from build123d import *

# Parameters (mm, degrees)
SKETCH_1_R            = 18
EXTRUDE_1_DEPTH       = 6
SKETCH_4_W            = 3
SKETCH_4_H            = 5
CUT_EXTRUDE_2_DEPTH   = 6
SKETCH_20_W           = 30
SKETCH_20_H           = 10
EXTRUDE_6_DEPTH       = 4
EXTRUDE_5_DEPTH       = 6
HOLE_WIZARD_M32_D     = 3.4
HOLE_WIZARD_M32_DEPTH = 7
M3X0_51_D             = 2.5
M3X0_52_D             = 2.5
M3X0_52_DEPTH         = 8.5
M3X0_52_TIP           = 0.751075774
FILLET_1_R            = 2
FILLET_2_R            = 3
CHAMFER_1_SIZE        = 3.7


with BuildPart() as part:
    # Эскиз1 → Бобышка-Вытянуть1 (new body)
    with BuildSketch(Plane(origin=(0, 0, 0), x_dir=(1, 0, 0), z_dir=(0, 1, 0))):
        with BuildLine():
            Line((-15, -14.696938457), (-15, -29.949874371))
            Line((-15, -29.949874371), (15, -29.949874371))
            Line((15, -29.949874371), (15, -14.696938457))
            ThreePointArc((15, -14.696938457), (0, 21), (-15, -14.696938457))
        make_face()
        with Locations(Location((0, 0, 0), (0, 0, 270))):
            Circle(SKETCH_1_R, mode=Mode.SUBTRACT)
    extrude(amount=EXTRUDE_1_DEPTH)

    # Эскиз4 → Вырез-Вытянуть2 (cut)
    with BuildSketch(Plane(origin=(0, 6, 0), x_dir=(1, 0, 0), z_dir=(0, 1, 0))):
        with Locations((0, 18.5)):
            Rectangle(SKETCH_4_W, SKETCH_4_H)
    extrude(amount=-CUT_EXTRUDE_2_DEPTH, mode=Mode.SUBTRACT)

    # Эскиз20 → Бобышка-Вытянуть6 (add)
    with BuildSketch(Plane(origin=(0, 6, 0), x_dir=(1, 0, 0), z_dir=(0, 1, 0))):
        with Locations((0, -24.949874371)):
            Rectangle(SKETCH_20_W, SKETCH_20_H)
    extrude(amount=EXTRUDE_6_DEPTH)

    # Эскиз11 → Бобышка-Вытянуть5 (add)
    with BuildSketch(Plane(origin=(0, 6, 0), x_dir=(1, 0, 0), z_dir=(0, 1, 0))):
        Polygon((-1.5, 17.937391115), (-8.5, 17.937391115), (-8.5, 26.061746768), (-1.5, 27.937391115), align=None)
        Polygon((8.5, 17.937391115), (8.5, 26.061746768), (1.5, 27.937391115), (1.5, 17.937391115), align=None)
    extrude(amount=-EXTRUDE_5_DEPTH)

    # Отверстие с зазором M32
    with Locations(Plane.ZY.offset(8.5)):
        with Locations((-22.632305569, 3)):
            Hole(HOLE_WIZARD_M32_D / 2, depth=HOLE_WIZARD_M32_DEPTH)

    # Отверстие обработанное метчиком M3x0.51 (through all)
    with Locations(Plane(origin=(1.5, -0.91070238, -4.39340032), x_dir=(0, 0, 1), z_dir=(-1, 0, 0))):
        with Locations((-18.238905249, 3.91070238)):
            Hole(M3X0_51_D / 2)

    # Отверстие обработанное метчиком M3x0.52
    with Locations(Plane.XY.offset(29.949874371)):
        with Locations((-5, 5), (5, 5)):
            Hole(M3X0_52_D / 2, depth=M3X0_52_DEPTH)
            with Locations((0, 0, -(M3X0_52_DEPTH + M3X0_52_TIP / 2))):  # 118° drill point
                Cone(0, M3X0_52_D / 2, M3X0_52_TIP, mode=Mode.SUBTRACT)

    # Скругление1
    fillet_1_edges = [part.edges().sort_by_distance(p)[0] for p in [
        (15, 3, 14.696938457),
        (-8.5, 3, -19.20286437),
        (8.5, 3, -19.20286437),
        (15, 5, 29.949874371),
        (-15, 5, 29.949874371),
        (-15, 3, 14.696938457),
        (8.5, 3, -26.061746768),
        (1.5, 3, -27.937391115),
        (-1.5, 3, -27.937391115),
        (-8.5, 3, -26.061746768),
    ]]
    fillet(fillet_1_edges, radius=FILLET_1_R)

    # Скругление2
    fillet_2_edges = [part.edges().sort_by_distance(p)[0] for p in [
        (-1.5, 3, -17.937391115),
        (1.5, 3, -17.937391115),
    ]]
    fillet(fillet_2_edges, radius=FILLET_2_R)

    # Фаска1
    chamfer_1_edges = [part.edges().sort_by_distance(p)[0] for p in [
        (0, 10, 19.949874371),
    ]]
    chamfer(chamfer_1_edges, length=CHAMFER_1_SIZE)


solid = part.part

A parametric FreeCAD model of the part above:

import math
import FreeCAD as App
import Part
import Sketcher
from FreeCAD import Vector
Q = App.Units.Quantity


def edges_at(feature, points):
    """Names of the edges that pass closest to the given points."""
    edges = feature.Shape.Edges
    near = lambda p: min(range(len(edges)), key=lambda i: edges[i].distToShape(Part.Vertex(*p))[0])
    return sorted({f"Edge{near(p) + 1}" for p in points})

doc = App.newDocument("Part")
params = doc.addObject("Spreadsheet::Sheet", "Params")
for row, (alias, value) in enumerate([
    ("sketch1_diameter", "36 mm"),
    ("sketch1_radius", "21 mm"),
    ("sketch1_width", "30 mm"),
    ("pad1_length", "6 mm"),
    ("sketch2_width", "3 mm"),
    ("sketch2_height", "5 mm"),
    ("pocket1_length", "6 mm"),
    ("sketch3_width", "30 mm"),
    ("sketch3_height", "10 mm"),
    ("pad2_length", "4 mm"),
    ("sketch4_width", "7 mm"),
    ("sketch4_height", "10 mm"),
    ("pad3_length", "6 mm"),
    ("sketch5_diameter", "3.4 mm"),
    ("hole_diameter", "3.4 mm"),
    ("hole_depth", "7 mm"),
    ("sketch6_diameter", "2.5 mm"),
    ("hole2_diameter", "2.5 mm"),
    ("sketch7_diameter", "2.5 mm"),
    ("hole3_diameter", "2.5 mm"),
    ("hole3_depth", "8.5 mm"),
    ("fillet_radius", "2 mm"),
    ("fillet2_radius", "3 mm"),
    ("chamfer_size", "3.7 mm"),
], start=1):
    params.set(f"A{row}", alias)
    params.set(f"B{row}", "=" + value)
    params.setAlias(f"B{row}", alias)

body = doc.addObject("PartDesign::Body", "Body")

# Sketch on XZ plane
sketch1 = body.newObject("Sketcher::SketchObject", "Sketch")
sketch1.AttachmentSupport = (doc.getObject("XZ_Plane"), [""])
sketch1.MapMode = "FlatFace"
sketch1.addGeometry([
    Part.LineSegment(Vector(-15, 15, 0), Vector(-15, 30, 0)),  # 0
    Part.LineSegment(Vector(-15, 30, 0), Vector(15, 30, 0)),  # 1
    Part.LineSegment(Vector(15, 30, 0), Vector(15, 15, 0)),  # 2
    Part.ArcOfCircle(Part.Circle(Vector(0, 0, 0), Vector(0, 0, 1), 21), math.radians(136), math.radians(404)),  # 3
    Part.Circle(Vector(0, 0, 0), Vector(0, 0, 1), 18),  # 4
], False)
sketch1.addConstraint([
    Sketcher.Constraint("Coincident", 0, 2, 1, 1),
    Sketcher.Constraint("Coincident", 1, 2, 2, 1),
    Sketcher.Constraint("Coincident", 2, 2, 3, 2),
    Sketcher.Constraint("Coincident", 3, 1, 0, 1),
    Sketcher.Constraint("Vertical", 0),
    Sketcher.Constraint("Horizontal", 1),
    Sketcher.Constraint("Vertical", 2),
    Sketcher.Constraint("Coincident", 3, 3, -1, 1),
    Sketcher.Constraint("Coincident", 4, 3, -1, 1),
    Sketcher.Constraint("Horizontal", 2, 2, 3, 1),
    Sketcher.Constraint("Diameter", 4, Q("36 mm")),
    Sketcher.Constraint("Radius", 3, Q("21 mm")),
    Sketcher.Constraint("DistanceX", 1, 1, 1, 2, Q("30 mm")),
    Sketcher.Constraint("DistanceY", 0, 1, 0, 2, Q("15.252936 mm")),
])
sketch1.setExpression("Constraints[10]", "Params.sketch1_diameter")
sketch1.setExpression("Constraints[11]", "Params.sketch1_radius")
sketch1.setExpression("Constraints[12]", "Params.sketch1_width")
pad1 = body.newObject("PartDesign::Pad", "Pad")
pad1.Profile = sketch1
pad1.setExpression("Length", "Params.pad1_length")
pad1.Reversed = True

# Sketch on XZ plane
sketch2 = body.newObject("Sketcher::SketchObject", "Sketch001")
sketch2.AttachmentSupport = (doc.getObject("XZ_Plane"), [""])
sketch2.MapMode = "FlatFace"
sketch2.AttachmentOffset = App.Placement(Vector(0, 0, -6), App.Rotation())
sketch2.addGeometry([
    Part.LineSegment(Vector(-1.5, -21, 0), Vector(-1.5, -16, 0)),
    Part.LineSegment(Vector(-1.5, -16, 0), Vector(1.5, -16, 0)),
    Part.LineSegment(Vector(1.5, -16, 0), Vector(1.5, -21, 0)),
    Part.LineSegment(Vector(1.5, -21, 0), Vector(-1.5, -21, 0)),
], False)
sketch2.addConstraint([
    Sketcher.Constraint("Coincident", 0, 2, 1, 1),
    Sketcher.Constraint("Coincident", 1, 2, 2, 1),
    Sketcher.Constraint("Coincident", 2, 2, 3, 1),
    Sketcher.Constraint("Coincident", 3, 2, 0, 1),
    Sketcher.Constraint("Vertical", 0),
    Sketcher.Constraint("Horizontal", 1),
    Sketcher.Constraint("Vertical", 2),
    Sketcher.Constraint("Horizontal", 3),
    Sketcher.Constraint("DistanceX", 1, 1, 1, 2, Q("3 mm")),
    Sketcher.Constraint("DistanceY", 0, 1, 0, 2, Q("5 mm")),
    Sketcher.Constraint("DistanceY", 0, 2, -1, 1, Q("16 mm")),
    Sketcher.Constraint("DistanceX", 0, 2, -1, 1, Q("1.5 mm")),
])
sketch2.setExpression("Constraints[8]", "Params.sketch2_width")
sketch2.setExpression("Constraints[9]", "Params.sketch2_height")
pocket1 = body.newObject("PartDesign::Pocket", "Pocket")
pocket1.Profile = sketch2
pocket1.setExpression("Length", "Params.pocket1_length")
pocket1.Reversed = True

# Sketch on XZ plane
sketch3 = body.newObject("Sketcher::SketchObject", "Sketch002")
sketch3.AttachmentSupport = (doc.getObject("XZ_Plane"), [""])
sketch3.MapMode = "FlatFace"
sketch3.AttachmentOffset = App.Placement(Vector(0, 0, -6), App.Rotation())
sketch3.addGeometry([
    Part.LineSegment(Vector(-15, 20, 0), Vector(-15, 30, 0)),
    Part.LineSegment(Vector(-15, 30, 0), Vector(15, 30, 0)),
    Part.LineSegment(Vector(15, 30, 0), Vector(15, 20, 0)),
    Part.LineSegment(Vector(15, 20, 0), Vector(-15, 20, 0)),
], False)
sketch3.addConstraint([
    Sketcher.Constraint("Coincident", 0, 2, 1, 1),
    Sketcher.Constraint("Coincident", 1, 2, 2, 1),
    Sketcher.Constraint("Coincident", 2, 2, 3, 1),
    Sketcher.Constraint("Coincident", 3, 2, 0, 1),
    Sketcher.Constraint("Vertical", 0),
    Sketcher.Constraint("Horizontal", 1),
    Sketcher.Constraint("Vertical", 2),
    Sketcher.Constraint("Horizontal", 3),
    Sketcher.Constraint("DistanceX", 1, 1, 1, 2, Q("30 mm")),
    Sketcher.Constraint("DistanceY", 0, 1, 0, 2, Q("10 mm")),
    Sketcher.Constraint("DistanceX", 0, 2, -1, 1, Q("15 mm")),
    Sketcher.Constraint("DistanceY", -1, 1, 0, 2, Q("29.949874 mm")),
])
sketch3.setExpression("Constraints[8]", "Params.sketch3_width")
sketch3.setExpression("Constraints[9]", "Params.sketch3_height")
pad2 = body.newObject("PartDesign::Pad", "Pad001")
pad2.Profile = sketch3
pad2.setExpression("Length", "Params.pad2_length")
pad2.Reversed = True

# Sketch on XZ plane
sketch4 = body.newObject("Sketcher::SketchObject", "Sketch003")
sketch4.AttachmentSupport = (doc.getObject("XZ_Plane"), [""])
sketch4.MapMode = "FlatFace"
sketch4.AttachmentOffset = App.Placement(Vector(0, 0, -6), App.Rotation())
sketch4.addGeometry([
    Part.LineSegment(Vector(-8, -18, 0), Vector(-2, -18, 0)),  # 0
    Part.LineSegment(Vector(-2, -18, 0), Vector(-2, -28, 0)),  # 1
    Part.LineSegment(Vector(-2, -28, 0), Vector(-8, -26, 0)),  # 2
    Part.LineSegment(Vector(-8, -26, 0), Vector(-8, -18, 0)),  # 3
    Part.LineSegment(Vector(8, -18, 0), Vector(8, -26, 0)),  # 4
    Part.LineSegment(Vector(8, -26, 0), Vector(2, -28, 0)),  # 5
    Part.LineSegment(Vector(2, -28, 0), Vector(2, -18, 0)),  # 6
    Part.LineSegment(Vector(2, -18, 0), Vector(8, -18, 0)),  # 7
], False)
sketch4.addConstraint([
    Sketcher.Constraint("Coincident", 0, 2, 1, 1),
    Sketcher.Constraint("Coincident", 1, 2, 2, 1),
    Sketcher.Constraint("Coincident", 2, 2, 3, 1),
    Sketcher.Constraint("Coincident", 3, 2, 0, 1),
    Sketcher.Constraint("Coincident", 4, 2, 5, 1),
    Sketcher.Constraint("Coincident", 5, 2, 6, 1),
    Sketcher.Constraint("Coincident", 6, 2, 7, 1),
    Sketcher.Constraint("Coincident", 7, 2, 4, 1),
    Sketcher.Constraint("Horizontal", 0),
    Sketcher.Constraint("Vertical", 1),
    Sketcher.Constraint("Vertical", 3),
    Sketcher.Constraint("Vertical", 4),
    Sketcher.Constraint("Vertical", 6),
    Sketcher.Constraint("Horizontal", 7),
    Sketcher.Constraint("Symmetric", 2, 2, 4, 2, -2),
    Sketcher.Constraint("Symmetric", 1, 2, 5, 2, -2),
    Sketcher.Constraint("Horizontal", 3, 2, 6, 2),
    Sketcher.Constraint("DistanceX", 0, 1, 0, 2, Q("7 mm")),
    Sketcher.Constraint("DistanceY", 1, 2, 1, 1, Q("10 mm")),
    Sketcher.Constraint("Angle", 2, Q("165 deg")),
    Sketcher.Constraint("DistanceX", 1, 2, 4, 2, Q("10 mm")),
    Sketcher.Constraint("DistanceY", 0, 2, -1, 1, Q("17.937391 mm")),
])
sketch4.setExpression("Constraints[17]", "Params.sketch4_width")
sketch4.setExpression("Constraints[18]", "Params.sketch4_height")
pad3 = body.newObject("PartDesign::Pad", "Pad002")
pad3.Profile = sketch4
pad3.setExpression("Length", "Params.pad3_length")

# Sketch on YZ plane
sketch5 = body.newObject("Sketcher::SketchObject", "Sketch004")
sketch5.AttachmentSupport = (doc.getObject("YZ_Plane"), [""])
sketch5.MapMode = "FlatFace"
sketch5.AttachmentOffset = App.Placement(Vector(0, 0, -8.5), App.Rotation())
sketch5.addGeometry(Part.Circle(Vector(3, -22.6, 0), Vector(0, 0, 1), 1.7), False)
sketch5.addConstraint([
    Sketcher.Constraint("Diameter", 0, Q("3.4 mm")),
    Sketcher.Constraint("DistanceX", -1, 1, 0, 3, Q("3 mm")),
    Sketcher.Constraint("DistanceY", 0, 3, -1, 1, Q("22.632306 mm")),
])
sketch5.setExpression("Constraints[0]", "Params.sketch5_diameter")
doc.recompute()
hole = body.newObject("PartDesign::Hole", "Hole")
hole.Profile = sketch5
hole.ThreadType = "None"
hole.setExpression("Diameter", "Params.hole_diameter")
hole.DepthType = "Dimension"
hole.setExpression("Depth", "Params.hole_depth")
hole.DrillPoint = "Flat"
hole.Reversed = True

# Sketch on YZ plane
sketch6 = body.newObject("Sketcher::SketchObject", "Sketch005")
sketch6.AttachmentSupport = (doc.getObject("YZ_Plane"), [""])
sketch6.MapMode = "FlatFace"
sketch6.AttachmentOffset = App.Placement(Vector(0, 0, 1.5), App.Rotation())
sketch6.addGeometry(Part.Circle(Vector(3, -22.6, 0), Vector(0, 0, 1), 1.2), False)
sketch6.addConstraint([
    Sketcher.Constraint("Diameter", 0, Q("2.5 mm")),
    Sketcher.Constraint("DistanceX", -1, 1, 0, 3, Q("3 mm")),
    Sketcher.Constraint("DistanceY", 0, 3, -1, 1, Q("22.632306 mm")),
])
sketch6.setExpression("Constraints[0]", "Params.sketch6_diameter")
doc.recompute()
hole2 = body.newObject("PartDesign::Hole", "Hole001")
hole2.Profile = sketch6
hole2.ThreadType = "None"
hole2.setExpression("Diameter", "Params.hole2_diameter")
hole2.DepthType = "ThroughAll"
hole2.Reversed = True

# Sketch on XY plane
sketch7 = body.newObject("Sketcher::SketchObject", "Sketch006")
sketch7.AttachmentSupport = (doc.getObject("XY_Plane"), [""])
sketch7.MapMode = "FlatFace"
sketch7.AttachmentOffset = App.Placement(Vector(0, 0, 29.949874), App.Rotation())
sketch7.addGeometry([
    Part.Circle(Vector(-5, 5, 0), Vector(0, 0, 1), 1.2),
    Part.Circle(Vector(5, 5, 0), Vector(0, 0, 1), 1.2),
], False)
sketch7.addConstraint([
    Sketcher.Constraint("Equal", 0, 1),
    Sketcher.Constraint("Symmetric", 0, 3, 1, 3, -2),
    Sketcher.Constraint("Diameter", 0, Q("2.5 mm")),
    Sketcher.Constraint("DistanceX", 0, 3, -1, 1, Q("5 mm")),
    Sketcher.Constraint("DistanceY", -1, 1, 0, 3, Q("5 mm")),
])
sketch7.setExpression("Constraints[2]", "Params.sketch7_diameter")
doc.recompute()
hole3 = body.newObject("PartDesign::Hole", "Hole002")
hole3.Profile = sketch7
hole3.ThreadType = "None"
hole3.setExpression("Diameter", "Params.hole3_diameter")
hole3.DepthType = "Dimension"
hole3.setExpression("Depth", "Params.hole3_depth")
hole3.DrillPoint = "Angled"
hole3.DrillPointAngle = 118
doc.recompute()

fillet = body.newObject("PartDesign::Fillet", "Fillet")
fillet.Base = (hole3, edges_at(hole3, [
    (15, 3, 14.697),
    (-8.5, 3, -19.203),
    (8.5, 3, -19.203),
    (15, 5, 29.95),
    (-15, 5, 29.95),
    (-15, 3, 14.697),
    (8.5, 3, -26.062),
    (1.5, 3, -27.937),
    (-1.5, 3, -27.937),
    (-8.5, 3, -26.062),
]))
fillet.setExpression("Radius", "Params.fillet_radius")
doc.recompute()

fillet2 = body.newObject("PartDesign::Fillet", "Fillet001")
fillet2.Base = (fillet, edges_at(fillet, [(-1.5, 3, -17.937), (1.5, 3, -17.937)]))
fillet2.setExpression("Radius", "Params.fillet2_radius")
doc.recompute()

chamfer = body.newObject("PartDesign::Chamfer", "Chamfer")
chamfer.Base = (fillet2, edges_at(fillet2, [(0, 10, 19.95)]))
chamfer.setExpression("Size", "Params.chamfer_size")

doc.recompute()
